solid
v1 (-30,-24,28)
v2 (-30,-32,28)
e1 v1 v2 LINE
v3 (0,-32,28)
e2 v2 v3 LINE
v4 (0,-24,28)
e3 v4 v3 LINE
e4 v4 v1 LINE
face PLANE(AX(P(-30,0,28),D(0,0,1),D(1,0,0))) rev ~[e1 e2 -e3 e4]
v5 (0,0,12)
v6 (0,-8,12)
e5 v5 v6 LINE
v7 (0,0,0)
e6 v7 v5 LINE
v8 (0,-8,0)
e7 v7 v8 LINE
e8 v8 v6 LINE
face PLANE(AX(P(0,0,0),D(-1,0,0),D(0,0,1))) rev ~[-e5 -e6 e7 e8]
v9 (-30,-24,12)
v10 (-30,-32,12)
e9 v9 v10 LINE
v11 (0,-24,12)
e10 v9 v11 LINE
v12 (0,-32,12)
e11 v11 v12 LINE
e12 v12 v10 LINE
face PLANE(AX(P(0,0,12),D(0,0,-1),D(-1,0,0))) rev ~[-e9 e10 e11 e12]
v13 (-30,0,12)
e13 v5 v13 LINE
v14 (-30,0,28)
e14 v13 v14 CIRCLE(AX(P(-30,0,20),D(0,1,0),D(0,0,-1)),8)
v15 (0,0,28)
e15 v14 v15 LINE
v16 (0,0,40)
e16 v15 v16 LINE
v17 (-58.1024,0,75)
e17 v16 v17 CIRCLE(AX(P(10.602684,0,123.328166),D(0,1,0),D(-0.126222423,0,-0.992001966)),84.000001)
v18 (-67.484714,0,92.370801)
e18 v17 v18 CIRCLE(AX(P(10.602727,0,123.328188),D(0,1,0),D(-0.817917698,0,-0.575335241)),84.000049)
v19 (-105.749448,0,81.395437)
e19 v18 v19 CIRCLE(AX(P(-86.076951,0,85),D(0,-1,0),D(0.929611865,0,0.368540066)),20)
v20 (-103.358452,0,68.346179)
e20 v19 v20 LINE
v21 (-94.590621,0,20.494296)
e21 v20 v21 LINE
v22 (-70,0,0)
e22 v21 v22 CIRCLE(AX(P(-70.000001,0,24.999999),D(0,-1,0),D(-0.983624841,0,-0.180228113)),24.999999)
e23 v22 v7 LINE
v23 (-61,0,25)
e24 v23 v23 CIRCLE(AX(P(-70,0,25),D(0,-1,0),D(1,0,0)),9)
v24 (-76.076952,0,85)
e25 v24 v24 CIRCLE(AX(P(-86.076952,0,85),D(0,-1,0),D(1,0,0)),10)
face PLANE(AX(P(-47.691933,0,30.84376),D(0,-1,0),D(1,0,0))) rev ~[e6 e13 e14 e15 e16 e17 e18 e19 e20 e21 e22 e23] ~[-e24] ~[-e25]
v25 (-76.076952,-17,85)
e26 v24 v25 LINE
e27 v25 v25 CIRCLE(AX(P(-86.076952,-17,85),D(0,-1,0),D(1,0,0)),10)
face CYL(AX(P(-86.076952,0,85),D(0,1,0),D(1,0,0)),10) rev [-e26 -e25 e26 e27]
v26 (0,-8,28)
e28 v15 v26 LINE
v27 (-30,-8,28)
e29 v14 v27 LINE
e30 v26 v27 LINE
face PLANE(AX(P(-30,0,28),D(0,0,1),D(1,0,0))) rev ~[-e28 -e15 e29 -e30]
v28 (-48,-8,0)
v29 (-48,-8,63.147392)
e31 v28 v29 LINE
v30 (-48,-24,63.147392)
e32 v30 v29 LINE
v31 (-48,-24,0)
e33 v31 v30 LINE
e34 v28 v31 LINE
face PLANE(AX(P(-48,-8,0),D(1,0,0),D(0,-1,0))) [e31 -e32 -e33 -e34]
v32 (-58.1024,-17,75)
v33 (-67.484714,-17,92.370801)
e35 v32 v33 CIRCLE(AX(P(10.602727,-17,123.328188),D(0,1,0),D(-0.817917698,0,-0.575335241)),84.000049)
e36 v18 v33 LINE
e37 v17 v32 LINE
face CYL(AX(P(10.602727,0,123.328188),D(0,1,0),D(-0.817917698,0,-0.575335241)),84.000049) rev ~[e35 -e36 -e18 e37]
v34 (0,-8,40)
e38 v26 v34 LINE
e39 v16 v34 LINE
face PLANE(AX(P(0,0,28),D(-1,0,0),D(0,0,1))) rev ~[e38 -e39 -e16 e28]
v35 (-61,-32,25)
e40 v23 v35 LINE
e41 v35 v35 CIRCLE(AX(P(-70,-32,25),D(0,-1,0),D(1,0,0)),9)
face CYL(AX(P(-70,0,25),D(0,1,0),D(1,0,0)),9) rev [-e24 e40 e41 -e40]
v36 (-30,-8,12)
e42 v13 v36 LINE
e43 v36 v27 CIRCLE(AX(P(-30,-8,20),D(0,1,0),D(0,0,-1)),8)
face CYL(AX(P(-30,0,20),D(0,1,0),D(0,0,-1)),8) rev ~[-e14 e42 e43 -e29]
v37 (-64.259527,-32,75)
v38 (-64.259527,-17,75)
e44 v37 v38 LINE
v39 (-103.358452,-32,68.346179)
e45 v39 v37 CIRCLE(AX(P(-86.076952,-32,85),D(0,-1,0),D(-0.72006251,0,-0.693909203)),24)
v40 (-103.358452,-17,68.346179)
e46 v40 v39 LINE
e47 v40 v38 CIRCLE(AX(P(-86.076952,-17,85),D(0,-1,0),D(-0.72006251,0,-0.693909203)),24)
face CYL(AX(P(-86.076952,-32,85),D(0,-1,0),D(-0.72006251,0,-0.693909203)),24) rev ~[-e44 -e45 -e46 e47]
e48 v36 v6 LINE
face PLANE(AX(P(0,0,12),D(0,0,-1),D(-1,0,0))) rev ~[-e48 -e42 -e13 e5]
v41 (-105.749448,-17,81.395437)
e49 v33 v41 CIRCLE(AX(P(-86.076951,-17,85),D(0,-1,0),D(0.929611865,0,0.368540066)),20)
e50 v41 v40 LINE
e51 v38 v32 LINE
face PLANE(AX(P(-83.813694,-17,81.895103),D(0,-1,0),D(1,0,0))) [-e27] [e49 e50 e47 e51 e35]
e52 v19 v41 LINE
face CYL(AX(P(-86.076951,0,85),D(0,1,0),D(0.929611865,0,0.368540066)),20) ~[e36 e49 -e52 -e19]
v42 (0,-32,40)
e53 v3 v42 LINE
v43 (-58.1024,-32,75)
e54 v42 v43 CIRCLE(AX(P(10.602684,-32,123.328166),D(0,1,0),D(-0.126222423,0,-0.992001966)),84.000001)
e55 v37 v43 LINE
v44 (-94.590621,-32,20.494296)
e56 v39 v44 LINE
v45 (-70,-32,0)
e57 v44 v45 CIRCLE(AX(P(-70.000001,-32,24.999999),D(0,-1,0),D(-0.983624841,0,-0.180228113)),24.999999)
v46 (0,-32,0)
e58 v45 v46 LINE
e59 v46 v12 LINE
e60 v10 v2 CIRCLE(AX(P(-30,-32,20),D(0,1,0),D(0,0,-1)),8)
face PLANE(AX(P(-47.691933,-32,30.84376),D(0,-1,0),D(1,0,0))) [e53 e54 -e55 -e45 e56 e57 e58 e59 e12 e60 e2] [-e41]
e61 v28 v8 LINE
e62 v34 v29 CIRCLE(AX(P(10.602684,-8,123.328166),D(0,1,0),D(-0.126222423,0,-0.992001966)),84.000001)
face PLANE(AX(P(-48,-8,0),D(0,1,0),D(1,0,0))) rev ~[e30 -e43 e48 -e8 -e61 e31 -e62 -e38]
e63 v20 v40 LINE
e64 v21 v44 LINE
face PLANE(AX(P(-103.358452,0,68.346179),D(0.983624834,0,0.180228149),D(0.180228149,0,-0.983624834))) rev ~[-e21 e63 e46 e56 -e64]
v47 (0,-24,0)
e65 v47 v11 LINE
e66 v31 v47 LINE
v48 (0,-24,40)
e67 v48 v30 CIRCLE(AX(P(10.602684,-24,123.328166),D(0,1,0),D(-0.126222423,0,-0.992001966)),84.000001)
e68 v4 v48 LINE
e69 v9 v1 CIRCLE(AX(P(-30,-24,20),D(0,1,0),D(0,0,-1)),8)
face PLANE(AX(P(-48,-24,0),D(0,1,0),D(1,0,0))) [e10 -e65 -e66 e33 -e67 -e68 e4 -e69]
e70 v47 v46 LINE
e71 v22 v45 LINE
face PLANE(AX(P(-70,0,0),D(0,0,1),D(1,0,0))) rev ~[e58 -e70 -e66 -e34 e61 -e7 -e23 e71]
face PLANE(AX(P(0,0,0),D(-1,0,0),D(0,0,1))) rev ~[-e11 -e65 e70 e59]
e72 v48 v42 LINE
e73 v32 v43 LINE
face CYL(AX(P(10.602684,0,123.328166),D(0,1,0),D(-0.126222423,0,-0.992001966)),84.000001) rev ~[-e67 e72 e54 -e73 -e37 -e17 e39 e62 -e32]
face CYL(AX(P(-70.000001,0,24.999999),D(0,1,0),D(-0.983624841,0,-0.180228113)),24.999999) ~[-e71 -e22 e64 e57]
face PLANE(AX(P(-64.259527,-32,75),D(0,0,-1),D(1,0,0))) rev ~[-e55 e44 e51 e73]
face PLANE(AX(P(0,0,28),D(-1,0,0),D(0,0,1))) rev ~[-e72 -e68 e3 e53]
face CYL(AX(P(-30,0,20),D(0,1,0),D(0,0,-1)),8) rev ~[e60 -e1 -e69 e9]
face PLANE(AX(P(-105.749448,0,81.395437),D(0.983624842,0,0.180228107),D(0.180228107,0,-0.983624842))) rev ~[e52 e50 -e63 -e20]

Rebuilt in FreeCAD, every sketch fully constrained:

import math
import FreeCAD as App
import Part
import Sketcher
from FreeCAD import Vector


def add_polygon(sketch, points):
    """Adds a closed chain of lines whose ends are joined by coincident constraints."""
    first, n = sketch.GeometryCount, len(points)
    for a, b in zip(points, points[1:] + points[:1]):
        sketch.addGeometry(Part.LineSegment(App.Vector(*a, 0), App.Vector(*b, 0)), False)
    for i in range(n):
        sketch.addConstraint(Sketcher.Constraint("Coincident", first + i, 2, first + (i + 1) % n, 1))

doc = App.newDocument("Part")
body = doc.addObject("PartDesign::Body", "Body")

# Sketch on XZ plane
sketch1 = body.newObject("Sketcher::SketchObject", "Sketch")
sketch1.AttachmentSupport = (doc.getObject("XZ_Plane"), [""])
sketch1.MapMode = "FlatFace"
sketch1.addGeometry([
    Part.LineSegment(Vector(-70, 0, 0), Vector(0, 0, 0)),  # 0
    Part.LineSegment(Vector(0, 0, 0), Vector(0, 12, 0)),  # 1
    Part.LineSegment(Vector(0, 12, 0), Vector(-30, 12, 0)),  # 2
    Part.ArcOfCircle(Part.Circle(Vector(-30, 20, 0), Vector(0, 0, 1), 8), math.radians(90), math.radians(270)),  # 3
    Part.LineSegment(Vector(-30, 28, 0), Vector(0, 28, 0)),  # 4
    Part.LineSegment(Vector(0, 28, 0), Vector(0, 40, 0)),  # 5
    Part.ArcOfCircle(Part.Circle(Vector(11, 123, 0), Vector(0, 0, 1), 84), math.radians(-145), math.radians(-97)),  # 6
    Part.ArcOfCircle(Part.Circle(Vector(11, 123, 0), Vector(0, 0, 1), 84), math.radians(-158.37), math.radians(-144.88)),  # 7
    Part.ArcOfCircle(Part.Circle(Vector(-86, 85, 0), Vector(0, 0, 1), 20), math.radians(22), math.radians(190)),  # 8
    Part.LineSegment(Vector(-106, 81, 0), Vector(-103, 68, 0)),  # 9
    Part.LineSegment(Vector(-103, 68, 0), Vector(-95, 20, 0)),  # 10
    Part.ArcOfCircle(Part.Circle(Vector(-70, 25, 0), Vector(0, 0, 1), 25), math.radians(-170), math.radians(-90)),  # 11
    Part.Circle(Vector(-70, 25, 0), Vector(0, 0, 1), 9),  # 12
    Part.Circle(Vector(-86, 85, 0), Vector(0, 0, 1), 10),  # 13
], False)
sketch1.addConstraint([
    Sketcher.Constraint("Coincident", 0, 2, 1, 1),
    Sketcher.Constraint("Coincident", 1, 2, 2, 1),
    Sketcher.Constraint("Tangent", 2, 2, 3, 2),
    Sketcher.Constraint("Tangent", 3, 1, 4, 1),
    Sketcher.Constraint("Coincident", 4, 2, 5, 1),
    Sketcher.Constraint("Coincident", 5, 2, 6, 2),
    Sketcher.Constraint("Tangent", 6, 1, 7, 2),
    Sketcher.Constraint("Tangent", 7, 1, 8, 1),
    Sketcher.Constraint("Tangent", 8, 2, 9, 1),
    Sketcher.Constraint("Coincident", 9, 2, 10, 1),
    Sketcher.Constraint("Tangent", 10, 2, 11, 1),
    Sketcher.Constraint("Tangent", 11, 2, 0, 1),
    Sketcher.Constraint("Horizontal", 0),
    Sketcher.Constraint("Vertical", 1),
    Sketcher.Constraint("Horizontal", 2),
    Sketcher.Constraint("Horizontal", 4),
    Sketcher.Constraint("Vertical", 5),
    Sketcher.Constraint("Coincident", 0, 2, -1, 1),
    Sketcher.Constraint("Coincident", 12, 3, 11, 3),
    Sketcher.Constraint("Coincident", 13, 3, 8, 3),
    Sketcher.Constraint("PointOnObject", 4, 2, -2),
    Sketcher.Constraint("Parallel", 9, 10),
    Sketcher.Constraint("Equal", 1, 5),
    Sketcher.Constraint("Diameter", 12, 18.0),
    Sketcher.Constraint("Diameter", 13, 20.0),
    Sketcher.Constraint("Radius", 3, 8.0),
    Sketcher.Constraint("Radius", 6, 84.000001),
    Sketcher.Constraint("Radius", 8, 20.0),
    Sketcher.Constraint("Radius", 11, 24.999999),
    Sketcher.Constraint("DistanceX", 0, 1, 0, 2, 70.0),
    Sketcher.Constraint("DistanceX", 2, 2, 2, 1, 30.0),
    Sketcher.Constraint("DistanceY", 1, 1, 1, 2, 12.0),
    Sketcher.Constraint("DistanceY", -1, 1, 8, 3, 85.0),
    Sketcher.Constraint("DistanceY", -1, 1, 6, 1, 75.0),
    Sketcher.Constraint("Radius", 7, 84.000049),
    Sketcher.Constraint("Distance", 9, 13.266499),
    Sketcher.Constraint("DistanceX", 6, 1, -1, 1, 58.1024),
])
pad1 = body.newObject("PartDesign::Pad", "Pad")
pad1.Profile = sketch1
pad1.Length = 32

# Sketch on XZ plane
sketch2 = body.newObject("Sketcher::SketchObject", "Sketch001")
sketch2.AttachmentSupport = (doc.getObject("XZ_Plane"), [""])
sketch2.MapMode = "FlatFace"
sketch2.AttachmentOffset = App.Placement(Vector(0, 0, 32), App.Rotation())
sketch2.addGeometry([
    Part.ArcOfCircle(Part.Circle(Vector(-86, 85, 0), Vector(0, 0, 1), 20), math.radians(22), math.radians(190)),  # 0
    Part.LineSegment(Vector(-106, 81, 0), Vector(-103, 68, 0)),  # 1
    Part.ArcOfCircle(Part.Circle(Vector(-86, 85, 0), Vector(0, 0, 1), 24), math.radians(-136), math.radians(-25)),  # 2
    Part.LineSegment(Vector(-64, 75, 0), Vector(-58, 75, 0)),  # 3
    Part.ArcOfCircle(Part.Circle(Vector(11, 123, 0), Vector(0, 0, 1), 84), math.radians(-158.37), math.radians(-144.88)),  # 4
    Part.Circle(Vector(-86, 85, 0), Vector(0, 0, 1), 10),  # 5
], False)
sketch2.addConstraint([
    Sketcher.Constraint("Tangent", 0, 2, 1, 1),
    Sketcher.Constraint("Coincident", 1, 2, 2, 1),
    Sketcher.Constraint("Coincident", 2, 2, 3, 1),
    Sketcher.Constraint("Coincident", 3, 2, 4, 2),
    Sketcher.Constraint("Tangent", 4, 1, 0, 1),
    Sketcher.Constraint("Horizontal", 3),
    Sketcher.Constraint("Coincident", 2, 3, 0, 3),
    Sketcher.Constraint("Coincident", 5, 3, 0, 3),
    Sketcher.Constraint("Diameter", 5, 20.0),
    Sketcher.Constraint("Radius", 0, 20.0),
    Sketcher.Constraint("Radius", 2, 24.0),
    Sketcher.Constraint("DistanceY", -1, 1, 0, 3, 85.0),
    Sketcher.Constraint("DistanceY", -1, 1, 2, 2, 75.0),
    Sketcher.Constraint("Radius", 4, 84.000049),
    Sketcher.Constraint("DistanceX", 3, 2, -1, 1, 58.1024),
    Sketcher.Constraint("DistanceX", 1, 2, 5, 3, 17.2815),
    Sketcher.Constraint("DistanceX", 3, 1, 3, 2, 6.157127),
])
pocket1 = body.newObject("PartDesign::Pocket", "Pocket")
pocket1.Profile = sketch2
pocket1.Length = 15

# Sketch on XY plane
sketch3 = body.newObject("Sketcher::SketchObject", "Sketch002")
sketch3.AttachmentSupport = (doc.getObject("XY_Plane"), [""])
sketch3.MapMode = "FlatFace"
add_polygon(sketch3, [(-48, -24), (-48, -8), (0, -8), (0, -24)])  # lines 0-3
sketch3.addConstraint([
    Sketcher.Constraint("Vertical", 0),
    Sketcher.Constraint("Horizontal", 1),
    Sketcher.Constraint("Vertical", 2),
    Sketcher.Constraint("Horizontal", 3),
    Sketcher.Constraint("PointOnObject", 1, 2, -2),
    Sketcher.Constraint("DistanceX", 1, 1, 1, 2, 48.0),
    Sketcher.Constraint("DistanceY", 0, 1, 0, 2, 16.0),
    Sketcher.Constraint("DistanceY", 0, 2, -1, 1, 8.0),
])
pocket2 = body.newObject("PartDesign::Pocket", "Pocket001")
pocket2.Profile = sketch3
pocket2.Type = "ThroughAll"
pocket2.Reversed = True

doc.recompute()
